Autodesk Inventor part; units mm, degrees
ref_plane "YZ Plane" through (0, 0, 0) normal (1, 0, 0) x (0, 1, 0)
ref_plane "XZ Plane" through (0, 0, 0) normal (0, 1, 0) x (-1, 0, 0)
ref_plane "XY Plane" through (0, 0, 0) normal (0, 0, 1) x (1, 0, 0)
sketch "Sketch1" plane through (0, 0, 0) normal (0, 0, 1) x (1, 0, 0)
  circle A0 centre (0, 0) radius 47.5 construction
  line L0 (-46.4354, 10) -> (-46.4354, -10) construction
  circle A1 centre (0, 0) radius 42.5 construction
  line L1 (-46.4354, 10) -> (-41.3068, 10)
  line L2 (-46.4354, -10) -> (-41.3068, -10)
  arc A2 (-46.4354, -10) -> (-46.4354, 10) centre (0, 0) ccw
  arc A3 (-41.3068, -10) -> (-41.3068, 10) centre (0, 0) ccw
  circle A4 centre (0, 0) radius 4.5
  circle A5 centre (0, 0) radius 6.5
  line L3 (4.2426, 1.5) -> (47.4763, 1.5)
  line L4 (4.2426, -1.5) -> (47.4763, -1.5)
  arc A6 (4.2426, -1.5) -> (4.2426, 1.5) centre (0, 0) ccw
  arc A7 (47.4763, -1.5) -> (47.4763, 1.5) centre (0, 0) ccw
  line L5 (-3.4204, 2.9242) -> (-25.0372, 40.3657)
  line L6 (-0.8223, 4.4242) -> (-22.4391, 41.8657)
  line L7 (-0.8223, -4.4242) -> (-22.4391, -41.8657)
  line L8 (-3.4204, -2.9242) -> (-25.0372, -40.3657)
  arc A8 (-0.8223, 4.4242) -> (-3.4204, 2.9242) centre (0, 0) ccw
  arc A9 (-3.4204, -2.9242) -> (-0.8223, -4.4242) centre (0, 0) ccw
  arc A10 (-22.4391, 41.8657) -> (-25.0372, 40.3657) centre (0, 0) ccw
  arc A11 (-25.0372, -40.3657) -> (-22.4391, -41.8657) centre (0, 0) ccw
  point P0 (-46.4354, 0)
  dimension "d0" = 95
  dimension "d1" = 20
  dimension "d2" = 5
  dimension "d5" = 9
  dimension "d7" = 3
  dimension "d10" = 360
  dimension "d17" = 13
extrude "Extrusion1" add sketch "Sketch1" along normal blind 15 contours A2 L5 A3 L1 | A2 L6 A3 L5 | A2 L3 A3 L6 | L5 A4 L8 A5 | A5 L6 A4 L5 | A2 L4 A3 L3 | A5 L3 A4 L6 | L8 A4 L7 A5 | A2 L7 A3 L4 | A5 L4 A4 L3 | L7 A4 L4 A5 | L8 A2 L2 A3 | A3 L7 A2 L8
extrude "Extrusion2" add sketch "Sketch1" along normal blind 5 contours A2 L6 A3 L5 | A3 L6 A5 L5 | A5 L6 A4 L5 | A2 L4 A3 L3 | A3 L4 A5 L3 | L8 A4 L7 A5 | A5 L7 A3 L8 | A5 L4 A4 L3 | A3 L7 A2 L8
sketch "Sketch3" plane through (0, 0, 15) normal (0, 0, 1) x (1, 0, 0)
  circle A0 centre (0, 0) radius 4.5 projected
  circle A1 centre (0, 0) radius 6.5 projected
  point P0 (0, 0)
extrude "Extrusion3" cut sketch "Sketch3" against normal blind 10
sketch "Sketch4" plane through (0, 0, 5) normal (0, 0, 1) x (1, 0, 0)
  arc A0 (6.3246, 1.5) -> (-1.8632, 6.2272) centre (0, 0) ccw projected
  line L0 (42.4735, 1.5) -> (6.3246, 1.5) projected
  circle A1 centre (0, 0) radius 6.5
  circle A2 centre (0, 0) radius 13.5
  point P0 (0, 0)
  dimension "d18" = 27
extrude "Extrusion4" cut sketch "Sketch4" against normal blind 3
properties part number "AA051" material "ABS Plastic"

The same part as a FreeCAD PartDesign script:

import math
import FreeCAD as App
import Part
import Sketcher
from FreeCAD import Vector
Q = App.Units.Quantity

doc = App.newDocument("Part")
params = doc.addObject("Spreadsheet::Sheet", "Params")
for row, (alias, value) in enumerate([
    ("sketch1_diameter", "13 mm"),
    ("sketch1_diameter2", "9 mm"),
    ("sketch1_radius", "47.5 mm"),
    ("sketch1_radius2", "42.5 mm"),
    ("pad1_length", "15 mm"),
    ("sketch2_radius", "47.5 mm"),
    ("sketch2_radius2", "4.5 mm"),
    ("pad2_length", "5 mm"),
    ("sketch3_diameter", "13 mm"),
    ("sketch3_diameter2", "9 mm"),
    ("pocket1_length", "10 mm"),
    ("sketch4_diameter", "27 mm"),
    ("sketch4_radius", "6.5 mm"),
    ("pocket2_length", "3 mm"),
], start=1):
    params.set(f"A{row}", alias)
    params.set(f"B{row}", "=" + value)
    params.setAlias(f"B{row}", alias)

body = doc.addObject("PartDesign::Body", "Body")
body.AllowCompound = True

sketch1 = doc.addObject("Sketcher::SketchObject", "Sketch")
body.addObject(sketch1)
sketch1.AttachmentSupport = (doc.XY_Plane, [""])
sketch1.MapMode = "FlatFace"
sketch1.addGeometry(Part.LineSegment(Vector(-46.4, 10, 0), Vector(-41.3, 10, 0)), False)
sketch1.addGeometry(Part.ArcOfCircle(Part.Circle(Vector(0, 0, 0), Vector(0, 0, 1), 42.5), math.radians(-166), math.radians(166)), False)
sketch1.addGeometry(Part.LineSegment(Vector(-41.3, -10, 0), Vector(-46.4, -10, 0)), False)
sketch1.addGeometry(Part.ArcOfCircle(Part.Circle(Vector(0, 0, 0), Vector(0, 0, 1), 47.5), math.radians(-168), math.radians(168)), False)
sketch1.addGeometry(Part.Circle(Vector(0, 0, 0), Vector(0, 0, 1), 6.5), False)
sketch1.addGeometry(Part.Circle(Vector(0, 0, 0), Vector(0, 0, 1), 4.5), False)
sketch1.addConstraint(Sketcher.Constraint("Coincident", 0, 2, 1, 2))
sketch1.addConstraint(Sketcher.Constraint("Coincident", 1, 1, 2, 1))
sketch1.addConstraint(Sketcher.Constraint("Coincident", 2, 2, 3, 1))
sketch1.addConstraint(Sketcher.Constraint("Coincident", 3, 2, 0, 1))
sketch1.addConstraint(Sketcher.Constraint("Horizontal", 0))
sketch1.addConstraint(Sketcher.Constraint("Horizontal", 2))
sketch1.addConstraint(Sketcher.Constraint("Coincident", 1, 3, -1, 1))
sketch1.addConstraint(Sketcher.Constraint("Coincident", 3, 3, -1, 1))
sketch1.addConstraint(Sketcher.Constraint("Coincident", 4, 3, -1, 1))
sketch1.addConstraint(Sketcher.Constraint("Coincident", 5, 3, -1, 1))
sketch1.addConstraint(Sketcher.Constraint("Vertical", 0, 2, 1, 1))
sketch1.addConstraint(Sketcher.Constraint("Diameter", 4, 13.0))
sketch1.addConstraint(Sketcher.Constraint("Diameter", 5, 9.0))
sketch1.addConstraint(Sketcher.Constraint("Radius", 3, 47.5))
sketch1.addConstraint(Sketcher.Constraint("DistanceY", 1, 1, 0, 2, 20.0))
sketch1.addConstraint(Sketcher.Constraint("Radius", 1, 42.5))
sketch1.setExpression("Constraints[11]", "Params.sketch1_diameter")
sketch1.setExpression("Constraints[12]", "Params.sketch1_diameter2")
sketch1.setExpression("Constraints[13]", "Params.sketch1_radius")
sketch1.setExpression("Constraints[15]", "Params.sketch1_radius2")
pad1 = doc.addObject("PartDesign::Pad", "Pad")
body.addObject(pad1)
pad1.Profile = sketch1
pad1.setExpression("Length", "Params.pad1_length")

sketch2 = doc.addObject("Sketcher::SketchObject", "Sketch001")
body.addObject(sketch2)
sketch2.AttachmentSupport = (doc.XY_Plane, [""])
sketch2.MapMode = "FlatFace"
sketch2.addGeometry(Part.ArcOfCircle(Part.Circle(Vector(0, 0, 0), Vector(0, 0, 1), 47.5), math.radians(118.19), math.radians(121.81)), False)
sketch2.addGeometry(Part.LineSegment(Vector(-25, 40.4, 0), Vector(-3.4, 2.9, 0)), False)
sketch2.addGeometry(Part.ArcOfCircle(Part.Circle(Vector(0, 0, 0), Vector(0, 0, 1), 4.5), math.radians(101), math.radians(139)), False)
sketch2.addGeometry(Part.LineSegment(Vector(-0.8, 4.4, 0), Vector(-22.4, 41.9, 0)), False)
sketch2.addGeometry(Part.ArcOfCircle(Part.Circle(Vector(0, 0, 0), Vector(0, 0, 1), 47.5), math.radians(-1.81), math.radians(1.81)), False)
sketch2.addGeometry(Part.LineSegment(Vector(47.5, 1.5, 0), Vector(4.2, 1.5, 0)), False)
sketch2.addGeometry(Part.ArcOfCircle(Part.Circle(Vector(0, 0, 0), Vector(0, 0, 1), 4.5), math.radians(-19), math.radians(19)), False)
sketch2.addGeometry(Part.LineSegment(Vector(4.2, -1.5, 0), Vector(47.5, -1.5, 0)), False)
sketch2.addGeometry(Part.LineSegment(Vector(-3.4, -2.9, 0), Vector(-25, -40.4, 0)), False)
sketch2.addGeometry(Part.ArcOfCircle(Part.Circle(Vector(0, 0, 0), Vector(0, 0, 1), 47.5), math.radians(-121.81), math.radians(-118.19)), False)
sketch2.addGeometry(Part.LineSegment(Vector(-22.4, -41.9, 0), Vector(-0.8, -4.4, 0)), False)
sketch2.addGeometry(Part.ArcOfCircle(Part.Circle(Vector(0, 0, 0), Vector(0, 0, 1), 4.5), math.radians(-139), math.radians(-101)), False)
sketch2.addConstraint(Sketcher.Constraint("Coincident", 0, 2, 1, 1))
sketch2.addConstraint(Sketcher.Constraint("Coincident", 1, 2, 2, 2))
sketch2.addConstraint(Sketcher.Constraint("Coincident", 2, 1, 3, 1))
sketch2.addConstraint(Sketcher.Constraint("Coincident", 3, 2, 0, 1))
sketch2.addConstraint(Sketcher.Constraint("Coincident", 4, 2, 5, 1))
sketch2.addConstraint(Sketcher.Constraint("Coincident", 5, 2, 6, 2))
sketch2.addConstraint(Sketcher.Constraint("Coincident", 6, 1, 7, 1))
sketch2.addConstraint(Sketcher.Constraint("Coincident", 7, 2, 4, 1))
sketch2.addConstraint(Sketcher.Constraint("Coincident", 8, 2, 9, 1))
sketch2.addConstraint(Sketcher.Constraint("Coincident", 9, 2, 10, 1))
sketch2.addConstraint(Sketcher.Constraint("Coincident", 10, 2, 11, 2))
sketch2.addConstraint(Sketcher.Constraint("Coincident", 11, 1, 8, 1))
sketch2.addConstraint(Sketcher.Constraint("Horizontal", 5))
sketch2.addConstraint(Sketcher.Constraint("Horizontal", 7))
sketch2.addConstraint(Sketcher.Constraint("Coincident", 0, 3, -1, 1))
sketch2.addConstraint(Sketcher.Constraint("Coincident", 2, 3, -1, 1))
sketch2.addConstraint(Sketcher.Constraint("Coincident", 4, 3, -1, 1))
sketch2.addConstraint(Sketcher.Constraint("Coincident", 6, 3, -1, 1))
sketch2.addConstraint(Sketcher.Constraint("Coincident", 9, 3, -1, 1))
sketch2.addConstraint(Sketcher.Constraint("Coincident", 11, 3, -1, 1))
sketch2.addConstraint(Sketcher.Constraint("Equal", 0, 4))
sketch2.addConstraint(Sketcher.Constraint("Equal", 2, 6))
sketch2.addConstraint(Sketcher.Constraint("Equal", 4, 9))
sketch2.addConstraint(Sketcher.Constraint("Equal", 6, 11))
sketch2.addConstraint(Sketcher.Constraint("Parallel", 1, 3))
sketch2.addConstraint(Sketcher.Constraint("Parallel", 8, 10))
sketch2.addConstraint(Sketcher.Constraint("Vertical", 5, 2, 6, 1))
sketch2.addConstraint(Sketcher.Constraint("Vertical", 0, 2, 8, 2))
sketch2.addConstraint(Sketcher.Constraint("Vertical", 3, 2, 9, 2))
sketch2.addConstraint(Sketcher.Constraint("Vertical", 2, 1, 10, 2))
sketch2.addConstraint(Sketcher.Constraint("Equal", 1, 3))
sketch2.addConstraint(Sketcher.Constraint("Radius", 0, 47.5))
sketch2.addConstraint(Sketcher.Constraint("Radius", 2, 4.5))
sketch2.addConstraint(Sketcher.Constraint("DistanceY", 6, 1, 5, 2, 3.0))
sketch2.addConstraint(Sketcher.Constraint("Angle", 1, Q("-60 deg")))
sketch2.addConstraint(Sketcher.Constraint("DistanceY", 1, 2, 2, 1, 1.5))
sketch2.setExpression("Constraints[31]", "Params.sketch2_radius")
sketch2.setExpression("Constraints[32]", "Params.sketch2_radius2")
pad2 = doc.addObject("PartDesign::Pad", "Pad001")
body.addObject(pad2)
pad2.Profile = sketch2
pad2.setExpression("Length", "Params.pad2_length")

sketch3 = doc.addObject("Sketcher::SketchObject", "Sketch002")
body.addObject(sketch3)
sketch3.AttachmentSupport = (doc.XY_Plane, [""])
sketch3.MapMode = "FlatFace"
sketch3.AttachmentOffset = App.Placement(Vector(0, 0, 15), App.Rotation())
sketch3.addGeometry(Part.Circle(Vector(0, 0, 0), Vector(0, 0, 1), 6.5), False)
sketch3.addGeometry(Part.Circle(Vector(0, 0, 0), Vector(0, 0, 1), 4.5), False)
sketch3.addConstraint(Sketcher.Constraint("Coincident", 0, 3, -1, 1))
sketch3.addConstraint(Sketcher.Constraint("Coincident", 1, 3, -1, 1))
sketch3.addConstraint(Sketcher.Constraint("Diameter", 0, 13.0))
sketch3.addConstraint(Sketcher.Constraint("Diameter", 1, 9.0))
sketch3.setExpression("Constraints[2]", "Params.sketch3_diameter")
sketch3.setExpression("Constraints[3]", "Params.sketch3_diameter2")
pocket1 = doc.addObject("PartDesign::Pocket", "Pocket")
body.addObject(pocket1)
pocket1.Profile = sketch3
pocket1.setExpression("Length", "Params.pocket1_length")

sketch4 = doc.addObject("Sketcher::SketchObject", "Sketch003")
body.addObject(sketch4)
sketch4.AttachmentSupport = (doc.XY_Plane, [""])
sketch4.MapMode = "FlatFace"
sketch4.AttachmentOffset = App.Placement(Vector(0, 0, 5), App.Rotation())
sketch4.addGeometry(Part.Circle(Vector(0, 0, 0), Vector(0, 0, 1), 14), False)
sketch4.addGeometry(Part.ArcOfCircle(Part.Circle(Vector(0, 0, 0), Vector(0, 0, 1), 6), math.radians(13), math.radians(107)), False)
sketch4.addGeometry(Part.ArcOfCircle(Part.Circle(Vector(0, 0, 0), Vector(0, 0, 1), 6), math.radians(107), math.radians(373)), False)
sketch4.addConstraint(Sketcher.Constraint("Tangent", 1, 1, 2, 2))
sketch4.addConstraint(Sketcher.Constraint("Coincident", 2, 1, 1, 2))
sketch4.addConstraint(Sketcher.Constraint("Coincident", 0, 3, -1, 1))
sketch4.addConstraint(Sketcher.Constraint("Coincident", 1, 3, -1, 1))
sketch4.addConstraint(Sketcher.Constraint("Diameter", 0, 27.0))
sketch4.addConstraint(Sketcher.Constraint("Radius", 1, 6.5))
sketch4.addConstraint(Sketcher.Constraint("DistanceY", -1, 1, 1, 1, 1.5))
sketch4.addConstraint(Sketcher.Constraint("DistanceX", 2, 1, -1, 1, 1.8632))
sketch4.setExpression("Constraints[4]", "Params.sketch4_diameter")
sketch4.setExpression("Constraints[5]", "Params.sketch4_radius")
pocket2 = doc.addObject("PartDesign::Pocket", "Pocket001")
body.addObject(pocket2)
pocket2.Profile = sketch4
pocket2.setExpression("Length", "Params.pocket2_length")

doc.recompute()
